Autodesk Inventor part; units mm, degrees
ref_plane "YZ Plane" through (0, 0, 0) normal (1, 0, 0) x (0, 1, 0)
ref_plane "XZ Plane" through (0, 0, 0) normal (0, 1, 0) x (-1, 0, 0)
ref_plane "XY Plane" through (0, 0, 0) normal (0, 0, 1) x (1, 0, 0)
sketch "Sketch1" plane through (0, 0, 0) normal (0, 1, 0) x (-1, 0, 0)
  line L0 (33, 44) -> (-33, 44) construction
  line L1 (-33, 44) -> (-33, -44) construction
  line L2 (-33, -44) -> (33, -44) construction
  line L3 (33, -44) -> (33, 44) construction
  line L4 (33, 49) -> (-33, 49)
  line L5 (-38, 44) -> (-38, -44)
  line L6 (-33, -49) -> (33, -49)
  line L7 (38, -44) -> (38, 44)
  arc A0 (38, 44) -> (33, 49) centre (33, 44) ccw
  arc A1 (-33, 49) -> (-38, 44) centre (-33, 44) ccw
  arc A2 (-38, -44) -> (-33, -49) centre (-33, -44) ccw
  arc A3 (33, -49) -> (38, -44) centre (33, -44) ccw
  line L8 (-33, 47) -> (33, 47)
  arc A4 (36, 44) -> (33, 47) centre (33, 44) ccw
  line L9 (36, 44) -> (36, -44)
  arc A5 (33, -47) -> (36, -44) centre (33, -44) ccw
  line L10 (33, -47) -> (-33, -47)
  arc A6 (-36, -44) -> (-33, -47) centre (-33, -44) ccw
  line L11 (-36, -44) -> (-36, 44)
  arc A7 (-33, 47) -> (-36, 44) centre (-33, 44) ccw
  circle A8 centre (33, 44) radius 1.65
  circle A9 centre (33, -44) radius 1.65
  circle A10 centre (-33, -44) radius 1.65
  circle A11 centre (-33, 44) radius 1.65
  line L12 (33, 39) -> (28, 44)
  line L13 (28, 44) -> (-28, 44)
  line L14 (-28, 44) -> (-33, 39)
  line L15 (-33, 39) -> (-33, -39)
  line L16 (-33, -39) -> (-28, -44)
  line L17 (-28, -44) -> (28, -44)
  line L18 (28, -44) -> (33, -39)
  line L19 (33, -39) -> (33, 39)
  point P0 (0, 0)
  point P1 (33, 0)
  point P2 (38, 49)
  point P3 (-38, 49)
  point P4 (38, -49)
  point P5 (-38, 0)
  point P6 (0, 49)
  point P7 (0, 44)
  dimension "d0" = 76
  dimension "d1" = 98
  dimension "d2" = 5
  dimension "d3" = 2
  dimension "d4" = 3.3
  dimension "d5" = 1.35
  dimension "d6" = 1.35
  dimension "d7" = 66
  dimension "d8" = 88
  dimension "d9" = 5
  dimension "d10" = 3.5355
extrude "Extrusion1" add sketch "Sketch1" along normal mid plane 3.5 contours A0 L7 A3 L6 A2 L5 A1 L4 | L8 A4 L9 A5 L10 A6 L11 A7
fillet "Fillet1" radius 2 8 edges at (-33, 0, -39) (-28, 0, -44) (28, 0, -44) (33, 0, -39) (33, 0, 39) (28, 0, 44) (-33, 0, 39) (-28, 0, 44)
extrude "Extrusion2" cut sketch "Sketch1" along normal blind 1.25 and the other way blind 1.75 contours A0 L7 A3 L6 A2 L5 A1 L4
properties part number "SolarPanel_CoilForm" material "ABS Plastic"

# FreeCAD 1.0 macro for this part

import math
import FreeCAD as App
import Part
import Sketcher
from FreeCAD import Vector


def edges_at(feature, points):
    """Names of the edges that pass closest to the given points."""
    edges = feature.Shape.Edges
    near = lambda p: min(range(len(edges)), key=lambda i: edges[i].distToShape(Part.Vertex(*p))[0])
    return sorted({f"Edge{near(p) + 1}" for p in points})

doc = App.newDocument("Part")
body = doc.addObject("PartDesign::Body", "Body")

sketch1 = body.newObject("Sketcher::SketchObject", "Sketch")
sketch1.AttachmentSupport = (doc.getObject("XZ_Plane"), [""])
sketch1.MapMode = "FlatFace"
sketch1.addGeometry([
    Part.ArcOfCircle(Part.Circle(Vector(-33, 44, 0), Vector(0, 0, 1), 5), math.radians(90), math.radians(180)),
    Part.LineSegment(Vector(-33, 49, 0), Vector(33, 49, 0)),
    Part.ArcOfCircle(Part.Circle(Vector(33, 44, 0), Vector(0, 0, 1), 5), math.radians(0), math.radians(90)),
    Part.LineSegment(Vector(38, 44, 0), Vector(38, -44, 0)),
    Part.ArcOfCircle(Part.Circle(Vector(33, -44, 0), Vector(0, 0, 1), 5), math.radians(-90), math.radians(0)),
    Part.LineSegment(Vector(33, -49, 0), Vector(-33, -49, 0)),
    Part.ArcOfCircle(Part.Circle(Vector(-33, -44, 0), Vector(0, 0, 1), 5), math.radians(180), math.radians(270)),
    Part.LineSegment(Vector(-38, -44, 0), Vector(-38, 44, 0)),
    Part.LineSegment(Vector(33, 39, 0), Vector(28, 44, 0)),
    Part.LineSegment(Vector(28, 44, 0), Vector(-28, 44, 0)),
    Part.LineSegment(Vector(-28, 44, 0), Vector(-33, 39, 0)),
    Part.LineSegment(Vector(-33, 39, 0), Vector(-33, -39, 0)),
    Part.LineSegment(Vector(-33, -39, 0), Vector(-28, -44, 0)),
    Part.LineSegment(Vector(-28, -44, 0), Vector(28, -44, 0)),
    Part.LineSegment(Vector(28, -44, 0), Vector(33, -39, 0)),
    Part.LineSegment(Vector(33, -39, 0), Vector(33, 39, 0)),
    Part.Circle(Vector(33, 44, 0), Vector(0, 0, 1), 1.65),
    Part.Circle(Vector(-33, 44, 0), Vector(0, 0, 1), 1.65),
    Part.Circle(Vector(33, -44, 0), Vector(0, 0, 1), 1.65),
    Part.Circle(Vector(-33, -44, 0), Vector(0, 0, 1), 1.65),
], False)
sketch1.addConstraint([
    Sketcher.Constraint("Tangent", 0, 1, 1, 1),
    Sketcher.Constraint("Tangent", 1, 2, 2, 2),
    Sketcher.Constraint("Tangent", 2, 1, 3, 1),
    Sketcher.Constraint("Tangent", 3, 2, 4, 2),
    Sketcher.Constraint("Tangent", 4, 1, 5, 1),
    Sketcher.Constraint("Tangent", 5, 2, 6, 2),
    Sketcher.Constraint("Tangent", 6, 1, 7, 1),
    Sketcher.Constraint("Tangent", 7, 2, 0, 2),
    Sketcher.Constraint("Coincident", 8, 2, 9, 1),
    Sketcher.Constraint("Coincident", 9, 2, 10, 1),
    Sketcher.Constraint("Coincident", 10, 2, 11, 1),
    Sketcher.Constraint("Coincident", 11, 2, 12, 1),
    Sketcher.Constraint("Coincident", 12, 2, 13, 1),
    Sketcher.Constraint("Coincident", 13, 2, 14, 1),
    Sketcher.Constraint("Coincident", 14, 2, 15, 1),
    Sketcher.Constraint("Coincident", 15, 2, 8, 1),
    Sketcher.Constraint("Horizontal", 1),
    Sketcher.Constraint("Vertical", 3),
    Sketcher.Constraint("Horizontal", 5),
    Sketcher.Constraint("Vertical", 7),
    Sketcher.Constraint("Horizontal", 9),
    Sketcher.Constraint("Vertical", 11),
    Sketcher.Constraint("Horizontal", 13),
    Sketcher.Constraint("Vertical", 15),
    Sketcher.Constraint("Coincident", 16, 3, 2, 3),
    Sketcher.Constraint("Coincident", 17, 3, 0, 3),
    Sketcher.Constraint("Coincident", 18, 3, 4, 3),
    Sketcher.Constraint("Coincident", 19, 3, 6, 3),
    Sketcher.Constraint("Equal", 0, 2),
    Sketcher.Constraint("Equal", 2, 4),
    Sketcher.Constraint("Equal", 4, 6),
    Sketcher.Constraint("Equal", 16, 17),
    Sketcher.Constraint("Equal", 17, 18),
    Sketcher.Constraint("Equal", 18, 19),
    Sketcher.Constraint("Symmetric", 0, 3, 4, 3, -1, 1),
    Sketcher.Constraint("Symmetric", 8, 2, 12, 2, -1, 1),
    Sketcher.Constraint("Symmetric", 10, 2, 14, 2, -1, 1),
    Sketcher.Constraint("Perpendicular", 8, 10),
    Sketcher.Constraint("Perpendicular", 10, 12),
    Sketcher.Constraint("Perpendicular", 12, 14),
    Sketcher.Constraint("Horizontal", 7, 2, 8, 2),
    Sketcher.Constraint("Horizontal", 11, 2, 14, 2),
    Sketcher.Constraint("Vertical", 5, 2, 10, 2),
    Sketcher.Constraint("Vertical", 9, 2, 12, 2),
    Sketcher.Constraint("Radius", 0, 5.0),
    Sketcher.Constraint("Diameter", 16, 3.3),
    Sketcher.Constraint("DistanceX", 1, 1, 1, 2, 66.0),
    Sketcher.Constraint("DistanceY", 3, 2, 3, 1, 88.0),
    Sketcher.Constraint("DistanceX", 8, 2, 2, 3, 5.0),
])
pad1 = body.newObject("PartDesign::Pad", "Pad")
pad1.Profile = sketch1
pad1.Length = 3.5
pad1.Midplane = True
doc.recompute()

fillet = body.newObject("PartDesign::Fillet", "Fillet")
fillet.Base = (pad1, edges_at(pad1, [
    (-33, 0, -39),
    (-28, 0, -44),
    (28, 0, -44),
    (33, 0, -39),
    (33, 0, 39),
    (28, 0, 44),
    (-33, 0, 39),
    (-28, 0, 44),
]))
fillet.Radius = 2

sketch2 = body.newObject("Sketcher::SketchObject", "Sketch001")
sketch2.AttachmentSupport = (doc.getObject("XZ_Plane"), [""])
sketch2.MapMode = "FlatFace"
sketch2.addGeometry([
    Part.ArcOfCircle(Part.Circle(Vector(-33, 44, 0), Vector(0, 0, 1), 5), math.radians(90), math.radians(180)),
    Part.LineSegment(Vector(-33, 49, 0), Vector(33, 49, 0)),
    Part.ArcOfCircle(Part.Circle(Vector(33, 44, 0), Vector(0, 0, 1), 5), math.radians(0), math.radians(90)),
    Part.LineSegment(Vector(38, 44, 0), Vector(38, -44, 0)),
    Part.ArcOfCircle(Part.Circle(Vector(33, -44, 0), Vector(0, 0, 1), 5), math.radians(-90), math.radians(0)),
    Part.LineSegment(Vector(33, -49, 0), Vector(-33, -49, 0)),
    Part.ArcOfCircle(Part.Circle(Vector(-33, -44, 0), Vector(0, 0, 1), 5), math.radians(180), math.radians(270)),
    Part.LineSegment(Vector(-38, -44, 0), Vector(-38, 44, 0)),
    Part.ArcOfCircle(Part.Circle(Vector(33, 44, 0), Vector(0, 0, 1), 3), math.radians(0), math.radians(90)),
    Part.LineSegment(Vector(33, 47, 0), Vector(-33, 47, 0)),
    Part.ArcOfCircle(Part.Circle(Vector(-33, 44, 0), Vector(0, 0, 1), 3), math.radians(90), math.radians(180)),
    Part.LineSegment(Vector(-36, 44, 0), Vector(-36, -44, 0)),
    Part.ArcOfCircle(Part.Circle(Vector(-33, -44, 0), Vector(0, 0, 1), 3), math.radians(180), math.radians(270)),
    Part.LineSegment(Vector(-33, -47, 0), Vector(33, -47, 0)),
    Part.ArcOfCircle(Part.Circle(Vector(33, -44, 0), Vector(0, 0, 1), 3), math.radians(-90), math.radians(0)),
    Part.LineSegment(Vector(36, -44, 0), Vector(36, 44, 0)),
], False)
sketch2.addConstraint([
    Sketcher.Constraint("Tangent", 0, 1, 1, 1),
    Sketcher.Constraint("Tangent", 1, 2, 2, 2),
    Sketcher.Constraint("Tangent", 2, 1, 3, 1),
    Sketcher.Constraint("Tangent", 3, 2, 4, 2),
    Sketcher.Constraint("Tangent", 4, 1, 5, 1),
    Sketcher.Constraint("Tangent", 5, 2, 6, 2),
    Sketcher.Constraint("Tangent", 6, 1, 7, 1),
    Sketcher.Constraint("Tangent", 7, 2, 0, 2),
    Sketcher.Constraint("Tangent", 8, 2, 9, 1),
    Sketcher.Constraint("Tangent", 9, 2, 10, 1),
    Sketcher.Constraint("Tangent", 10, 2, 11, 1),
    Sketcher.Constraint("Tangent", 11, 2, 12, 1),
    Sketcher.Constraint("Tangent", 12, 2, 13, 1),
    Sketcher.Constraint("Tangent", 13, 2, 14, 1),
    Sketcher.Constraint("Tangent", 14, 2, 15, 1),
    Sketcher.Constraint("Tangent", 15, 2, 8, 1),
    Sketcher.Constraint("Horizontal", 1),
    Sketcher.Constraint("Vertical", 3),
    Sketcher.Constraint("Horizontal", 5),
    Sketcher.Constraint("Vertical", 7),
    Sketcher.Constraint("Horizontal", 9),
    Sketcher.Constraint("Vertical", 11),
    Sketcher.Constraint("Horizontal", 13),
    Sketcher.Constraint("Vertical", 15),
    Sketcher.Constraint("Coincident", 8, 3, 2, 3),
    Sketcher.Constraint("Coincident", 10, 3, 0, 3),
    Sketcher.Constraint("Coincident", 12, 3, 6, 3),
    Sketcher.Constraint("Equal", 0, 2),
    Sketcher.Constraint("Equal", 2, 4),
    Sketcher.Constraint("Equal", 4, 6),
    Sketcher.Constraint("Equal", 12, 14),
    Sketcher.Constraint("Symmetric", 0, 3, 4, 3, -1, 1),
    Sketcher.Constraint("Radius", 0, 5.0),
    Sketcher.Constraint("DistanceX", 1, 1, 1, 2, 66.0),
    Sketcher.Constraint("DistanceY", 3, 2, 3, 1, 88.0),
    Sketcher.Constraint("Radius", 8, 3.0),
])
pocket1 = body.newObject("PartDesign::Pocket", "Pocket")
pocket1.Profile = sketch2
pocket1.Type = "TwoLengths"
pocket1.Length = 1.25
pocket1.Length2 = 1.75

doc.recompute()
